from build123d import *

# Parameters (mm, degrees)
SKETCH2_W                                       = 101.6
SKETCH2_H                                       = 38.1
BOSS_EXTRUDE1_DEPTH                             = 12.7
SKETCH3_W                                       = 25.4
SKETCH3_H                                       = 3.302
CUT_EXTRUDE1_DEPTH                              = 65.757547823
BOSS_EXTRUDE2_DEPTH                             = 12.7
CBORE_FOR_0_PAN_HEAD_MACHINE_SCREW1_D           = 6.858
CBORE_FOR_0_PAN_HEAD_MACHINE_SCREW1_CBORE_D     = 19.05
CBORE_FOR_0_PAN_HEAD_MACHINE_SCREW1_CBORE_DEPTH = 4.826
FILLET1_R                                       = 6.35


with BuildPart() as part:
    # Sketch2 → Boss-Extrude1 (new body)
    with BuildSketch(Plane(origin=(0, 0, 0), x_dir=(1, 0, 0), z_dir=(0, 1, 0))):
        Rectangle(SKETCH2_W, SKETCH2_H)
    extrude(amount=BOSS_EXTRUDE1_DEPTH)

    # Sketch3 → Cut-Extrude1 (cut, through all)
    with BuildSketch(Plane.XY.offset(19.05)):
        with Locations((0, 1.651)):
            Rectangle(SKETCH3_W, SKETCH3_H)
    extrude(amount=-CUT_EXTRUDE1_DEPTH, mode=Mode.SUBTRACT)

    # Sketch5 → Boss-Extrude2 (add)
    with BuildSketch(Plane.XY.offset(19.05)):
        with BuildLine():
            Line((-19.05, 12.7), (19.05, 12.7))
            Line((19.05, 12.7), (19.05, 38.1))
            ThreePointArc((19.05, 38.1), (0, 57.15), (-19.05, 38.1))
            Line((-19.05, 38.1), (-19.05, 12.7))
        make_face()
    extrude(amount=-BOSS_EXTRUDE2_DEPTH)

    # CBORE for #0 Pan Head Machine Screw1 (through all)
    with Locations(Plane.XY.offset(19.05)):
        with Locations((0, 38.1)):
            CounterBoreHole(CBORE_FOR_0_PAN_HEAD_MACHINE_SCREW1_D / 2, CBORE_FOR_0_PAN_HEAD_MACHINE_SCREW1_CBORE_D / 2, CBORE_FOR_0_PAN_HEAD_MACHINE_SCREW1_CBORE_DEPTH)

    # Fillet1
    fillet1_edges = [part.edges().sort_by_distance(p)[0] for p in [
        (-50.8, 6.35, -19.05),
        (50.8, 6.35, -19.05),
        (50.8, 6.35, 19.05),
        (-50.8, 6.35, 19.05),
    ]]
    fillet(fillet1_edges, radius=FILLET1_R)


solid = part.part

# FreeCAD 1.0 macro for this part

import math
import FreeCAD as App
import Part
import Sketcher

V = App.Vector
Q = App.Units.Quantity


def edges_at(feature, points):
    """Names of the edges that pass closest to the given points."""
    edges = feature.Shape.Edges
    near = lambda p: min(range(len(edges)), key=lambda i: edges[i].distToShape(Part.Vertex(*p))[0])
    return sorted({f"Edge{near(p) + 1}" for p in points})


def add_polygon(sketch, points):
    """Adds a closed chain of lines whose ends are joined by coincident constraints."""
    first, n = sketch.GeometryCount, len(points)
    for a, b in zip(points, points[1:] + points[:1]):
        sketch.addGeometry(Part.LineSegment(App.Vector(*a, 0), App.Vector(*b, 0)), False)
    for i in range(n):
        sketch.addConstraint(Sketcher.Constraint("Coincident", first + i, 2, first + (i + 1) % n, 1))

doc = App.newDocument("Part")
body = doc.addObject("PartDesign::Body", "Body")

# Sketch on XZ plane
sketch1 = body.newObject("Sketcher::SketchObject", "Sketch")
sketch1.AttachmentSupport = (doc.getObject("XZ_Plane"), [""])
sketch1.MapMode = "FlatFace"
add_polygon(sketch1, [(-50.8, -19.05), (-50.8, 19.05), (50.8, 19.05), (50.8, -19.05)])  # lines 0-3
sketch1.addConstraint(Sketcher.Constraint("Vertical", 0))
sketch1.addConstraint(Sketcher.Constraint("Horizontal", 1))
sketch1.addConstraint(Sketcher.Constraint("Vertical", 2))
sketch1.addConstraint(Sketcher.Constraint("Horizontal", 3))
sketch1.addConstraint(Sketcher.Constraint("Symmetric", 0, 2, 2, 2, -1, 1))
sketch1.addConstraint(Sketcher.Constraint("DistanceX", 1, 1, 1, 2, Q("4 in")))
sketch1.addConstraint(Sketcher.Constraint("DistanceY", 0, 1, 0, 2, Q("1.5 in")))
pad1 = body.newObject("PartDesign::Pad", "Pad")
pad1.Profile = sketch1
pad1.Length = Q("0.5 in")
pad1.Reversed = True

# Sketch on XY plane
sketch2 = body.newObject("Sketcher::SketchObject", "Sketch001")
sketch2.AttachmentSupport = (doc.getObject("XY_Plane"), [""])
sketch2.MapMode = "FlatFace"
sketch2.AttachmentOffset = App.Placement(V(0, 0, 0.75 * 25.4), App.Rotation())
add_polygon(sketch2, [(-12.7, 3.302), (-12.7, 0), (12.7, 0), (12.7, 3.302)])  # lines 0-3
sketch2.addConstraint(Sketcher.Constraint("Vertical", 0))
sketch2.addConstraint(Sketcher.Constraint("Horizontal", 1))
sketch2.addConstraint(Sketcher.Constraint("Vertical", 2))
sketch2.addConstraint(Sketcher.Constraint("Horizontal", 3))
sketch2.addConstraint(Sketcher.Constraint("Symmetric", 0, 2, 1, 2, -1, 1))
sketch2.addConstraint(Sketcher.Constraint("DistanceX", 1, 1, 1, 2, Q("1 in")))
sketch2.addConstraint(Sketcher.Constraint("DistanceY", 0, 2, 0, 1, Q("0.13 in")))
pocket1 = body.newObject("PartDesign::Pocket", "Pocket")
pocket1.Profile = sketch2
pocket1.Type = "ThroughAll"

# Sketch on XY plane
sketch3 = body.newObject("Sketcher::SketchObject", "Sketch002")
sketch3.AttachmentSupport = (doc.getObject("XY_Plane"), [""])
sketch3.MapMode = "FlatFace"
sketch3.AttachmentOffset = App.Placement(V(0, 0, 0.75 * 25.4), App.Rotation())
sketch3.addGeometry(Part.LineSegment(V(-19.05, 12.7, 0), V(19.05, 12.7, 0)), False)
sketch3.addGeometry(Part.LineSegment(V(19.05, 12.7, 0), V(19.05, 38.1, 0)), False)
sketch3.addGeometry(Part.ArcOfCircle(Part.Circle(V(0, 38.1, 0), V(0, 0, 1), 19.05), math.radians(0), math.radians(180)), False)
sketch3.addGeometry(Part.LineSegment(V(-19.05, 38.1, 0), V(-19.05, 12.7, 0)), False)
sketch3.addConstraint(Sketcher.Constraint("Coincident", 0, 2, 1, 1))
sketch3.addConstraint(Sketcher.Constraint("Tangent", 1, 2, 2, 1))
sketch3.addConstraint(Sketcher.Constraint("Tangent", 2, 2, 3, 1))
sketch3.addConstraint(Sketcher.Constraint("Coincident", 3, 2, 0, 1))
sketch3.addConstraint(Sketcher.Constraint("Horizontal", 0))
sketch3.addConstraint(Sketcher.Constraint("Vertical", 1))
sketch3.addConstraint(Sketcher.Constraint("Vertical", 3))
sketch3.addConstraint(Sketcher.Constraint("PointOnObject", 2, 3, -2))
sketch3.addConstraint(Sketcher.Constraint("DistanceY", 1, 1, 1, 2, Q("1 in")))
sketch3.addConstraint(Sketcher.Constraint("Radius", 2, Q("0.75 in")))
sketch3.addConstraint(Sketcher.Constraint("DistanceY", -1, 1, 2, 3, Q("1.5 in")))
pad2 = body.newObject("PartDesign::Pad", "Pad001")
pad2.Profile = sketch3
pad2.Length = Q("0.5 in")
pad2.Reversed = True

# Sketch on XY plane
sketch4 = body.newObject("Sketcher::SketchObject", "Sketch003")
sketch4.AttachmentSupport = (doc.getObject("XY_Plane"), [""])
sketch4.MapMode = "FlatFace"
sketch4.AttachmentOffset = App.Placement(V(0, 0, 0.75 * 25.4), App.Rotation())
sketch4.addGeometry(Part.Circle(V(0, 38.1, 0), V(0, 0, 1), 3.429), False)
sketch4.addConstraint(Sketcher.Constraint("PointOnObject", 0, 3, -2))
sketch4.addConstraint(Sketcher.Constraint("Diameter", 0, Q("0.27 in")))
sketch4.addConstraint(Sketcher.Constraint("DistanceY", -1, 1, 0, 3, Q("1.5 in")))
doc.recompute()
hole = body.newObject("PartDesign::Hole", "Hole")
hole.Profile = sketch4
hole.ThreadType = "None"
hole.Diameter = Q("0.27 in")
hole.DepthType = "ThroughAll"
hole.HoleCutType = "Counterbore"
hole.HoleCutDiameter = Q("0.75 in")
hole.HoleCutDepth = Q("0.19 in")
doc.recompute()

fillet = body.newObject("PartDesign::Fillet", "Fillet")
fillet.Base = (hole, edges_at(hole, [
    (-50.8, 6.35, -19.05),
    (50.8, 6.35, -19.05),
    (50.8, 6.35, 19.05),
    (-50.8, 6.35, 19.05),
]))
fillet.Radius = Q("0.25 in")

doc.recompute()
